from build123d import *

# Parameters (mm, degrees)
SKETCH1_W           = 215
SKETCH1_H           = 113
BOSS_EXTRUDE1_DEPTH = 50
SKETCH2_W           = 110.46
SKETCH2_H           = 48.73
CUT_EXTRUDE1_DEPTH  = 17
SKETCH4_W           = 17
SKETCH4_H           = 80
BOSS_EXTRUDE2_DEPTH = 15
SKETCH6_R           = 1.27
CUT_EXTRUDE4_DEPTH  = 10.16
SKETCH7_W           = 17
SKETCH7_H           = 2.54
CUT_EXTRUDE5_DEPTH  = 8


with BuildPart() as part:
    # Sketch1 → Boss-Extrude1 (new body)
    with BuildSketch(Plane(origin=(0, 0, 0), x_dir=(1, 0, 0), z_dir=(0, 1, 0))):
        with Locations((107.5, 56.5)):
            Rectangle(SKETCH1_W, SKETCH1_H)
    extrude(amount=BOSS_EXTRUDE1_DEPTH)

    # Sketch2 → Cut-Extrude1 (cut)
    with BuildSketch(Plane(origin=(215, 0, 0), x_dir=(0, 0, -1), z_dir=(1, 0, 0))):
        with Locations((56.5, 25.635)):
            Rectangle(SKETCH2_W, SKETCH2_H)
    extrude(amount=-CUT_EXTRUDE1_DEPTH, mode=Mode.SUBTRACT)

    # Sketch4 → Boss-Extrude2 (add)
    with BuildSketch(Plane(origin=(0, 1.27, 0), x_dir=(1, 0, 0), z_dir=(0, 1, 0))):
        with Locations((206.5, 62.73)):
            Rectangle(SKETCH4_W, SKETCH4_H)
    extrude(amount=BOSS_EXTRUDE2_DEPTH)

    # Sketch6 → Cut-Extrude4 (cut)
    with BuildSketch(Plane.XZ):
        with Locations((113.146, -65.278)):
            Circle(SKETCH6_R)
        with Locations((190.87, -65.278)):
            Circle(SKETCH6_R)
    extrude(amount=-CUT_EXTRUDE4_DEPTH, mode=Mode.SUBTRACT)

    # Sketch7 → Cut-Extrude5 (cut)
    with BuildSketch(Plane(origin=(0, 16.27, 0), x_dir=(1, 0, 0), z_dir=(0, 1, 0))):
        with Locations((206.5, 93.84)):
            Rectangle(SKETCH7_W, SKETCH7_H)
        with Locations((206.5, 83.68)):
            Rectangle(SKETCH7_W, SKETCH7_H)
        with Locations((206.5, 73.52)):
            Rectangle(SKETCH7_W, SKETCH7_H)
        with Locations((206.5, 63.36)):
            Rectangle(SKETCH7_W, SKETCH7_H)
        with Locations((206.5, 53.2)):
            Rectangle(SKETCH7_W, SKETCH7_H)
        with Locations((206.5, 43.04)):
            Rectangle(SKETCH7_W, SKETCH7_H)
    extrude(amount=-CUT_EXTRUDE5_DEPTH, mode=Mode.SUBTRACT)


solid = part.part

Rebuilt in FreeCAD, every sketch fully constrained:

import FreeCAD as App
import Part
import Sketcher

V = App.Vector


def add_polygon(sketch, points):
    """Adds a closed chain of lines whose ends are joined by coincident constraints."""
    first, n = sketch.GeometryCount, len(points)
    for a, b in zip(points, points[1:] + points[:1]):
        sketch.addGeometry(Part.LineSegment(App.Vector(*a, 0), App.Vector(*b, 0)), False)
    for i in range(n):
        sketch.addConstraint(Sketcher.Constraint("Coincident", first + i, 2, first + (i + 1) % n, 1))

doc = App.newDocument("Part")
params = doc.addObject("Spreadsheet::Sheet", "Params")
for row, (alias, value) in enumerate([
    ("sketch1_width", "215 mm"),
    ("sketch1_height", "113 mm"),
    ("pad1_length", "50 mm"),
    ("sketch2_width", "48.73 mm"),
    ("sketch2_height", "110.46 mm"),
    ("pocket1_length", "17 mm"),
    ("sketch3_width", "17 mm"),
    ("sketch3_height", "80 mm"),
    ("pad2_length", "15 mm"),
    ("sketch4_diameter", "2.54 mm"),
    ("pocket2_length", "10.16 mm"),
    ("sketch5_width", "17 mm"),
    ("sketch5_height", "2.54 mm"),
    ("pocket3_length", "8 mm"),
], start=1):
    params.set(f"A{row}", alias)
    params.set(f"B{row}", "=" + value)
    params.setAlias(f"B{row}", alias)

body = doc.addObject("PartDesign::Body", "Body")

sketch1 = doc.addObject("Sketcher::SketchObject", "Sketch")
body.addObject(sketch1)
sketch1.AttachmentSupport = (doc.XZ_Plane, [""])
sketch1.MapMode = "FlatFace"
add_polygon(sketch1, [(0, -113), (0, 0), (215, 0), (215, -113)])
sketch1.addConstraint([
    Sketcher.Constraint("Vertical", 0),
    Sketcher.Constraint("Horizontal", 1),
    Sketcher.Constraint("Vertical", 2),
    Sketcher.Constraint("Horizontal", 3),
    Sketcher.Constraint("Coincident", 0, 2, -1, 1),
    Sketcher.Constraint("DistanceX", 1, 1, 1, 2, 215.0),
    Sketcher.Constraint("DistanceY", 0, 1, 0, 2, 113.0),
])
sketch1.setExpression("Constraints[9]", "Params.sketch1_width")
sketch1.setExpression("Constraints[10]", "Params.sketch1_height")
pad1 = doc.addObject("PartDesign::Pad", "Pad")
body.addObject(pad1)
pad1.Profile = sketch1
pad1.setExpression("Length", "Params.pad1_length")
pad1.Reversed = True

sketch2 = doc.addObject("Sketcher::SketchObject", "Sketch001")
body.addObject(sketch2)
sketch2.AttachmentSupport = (doc.YZ_Plane, [""])
sketch2.MapMode = "FlatFace"
sketch2.AttachmentOffset = App.Placement(V(0, 0, 215), App.Rotation())
add_polygon(sketch2, [(50, -1), (1, -1), (1, -112), (50, -112)])
sketch2.addConstraint([
    Sketcher.Constraint("Horizontal", 0),
    Sketcher.Constraint("Vertical", 1),
    Sketcher.Constraint("Horizontal", 2),
    Sketcher.Constraint("Vertical", 3),
    Sketcher.Constraint("DistanceX", -1, 1, 2, 2, 50.0),
    Sketcher.Constraint("DistanceX", 0, 2, 0, 1, 48.73),
    Sketcher.Constraint("DistanceY", 1, 2, 1, 1, 110.46),
    Sketcher.Constraint("DistanceY", 0, 2, -1, 1, 1.27),
])
sketch2.setExpression("Constraints[9]", "Params.sketch2_width")
sketch2.setExpression("Constraints[10]", "Params.sketch2_height")
pocket1 = doc.addObject("PartDesign::Pocket", "Pocket")
body.addObject(pocket1)
pocket1.Profile = sketch2
pocket1.setExpression("Length", "Params.pocket1_length")

sketch3 = doc.addObject("Sketcher::SketchObject", "Sketch002")
body.addObject(sketch3)
sketch3.AttachmentSupport = (doc.XZ_Plane, [""])
sketch3.MapMode = "FlatFace"
sketch3.AttachmentOffset = App.Placement(V(0, 0, -1.27), App.Rotation())
add_polygon(sketch3, [(198, -103), (198, -23), (215, -23), (215, -103)])
sketch3.addConstraint([
    Sketcher.Constraint("Vertical", 0),
    Sketcher.Constraint("Horizontal", 1),
    Sketcher.Constraint("Vertical", 2),
    Sketcher.Constraint("Horizontal", 3),
    Sketcher.Constraint("DistanceX", 1, 1, 1, 2, 17.0),
    Sketcher.Constraint("DistanceY", 0, 1, 0, 2, 80.0),
    Sketcher.Constraint("DistanceX", -1, 1, 0, 2, 198.0),
    Sketcher.Constraint("DistanceY", 0, 2, -1, 1, 22.73),
])
sketch3.setExpression("Constraints[8]", "Params.sketch3_width")
sketch3.setExpression("Constraints[9]", "Params.sketch3_height")
pad2 = doc.addObject("PartDesign::Pad", "Pad001")
body.addObject(pad2)
pad2.Profile = sketch3
pad2.setExpression("Length", "Params.pad2_length")
pad2.Reversed = True

sketch4 = doc.addObject("Sketcher::SketchObject", "Sketch003")
body.addObject(sketch4)
sketch4.AttachmentSupport = (doc.XZ_Plane, [""])
sketch4.MapMode = "FlatFace"
sketch4.addGeometry([
    Part.Circle(V(113.1, -65.3, 0), V(0, 0, 1), 1.3),
    Part.Circle(V(190.9, -65.3, 0), V(0, 0, 1), 1.3),
], False)
sketch4.addConstraint([
    Sketcher.Constraint("Equal", 0, 1),
    Sketcher.Constraint("Horizontal", 0, 3, 1, 3),
    Sketcher.Constraint("Diameter", 0, 2.54),
    Sketcher.Constraint("DistanceX", -1, 1, 1, 3, 190.87),
    Sketcher.Constraint("DistanceX", -1, 1, 0, 3, 113.146),
    Sketcher.Constraint("DistanceY", 0, 3, -1, 1, 65.278),
])
sketch4.setExpression("Constraints[2]", "Params.sketch4_diameter")
pocket2 = doc.addObject("PartDesign::Pocket", "Pocket001")
body.addObject(pocket2)
pocket2.Profile = sketch4
pocket2.setExpression("Length", "Params.pocket2_length")

sketch5 = doc.addObject("Sketcher::SketchObject", "Sketch004")
body.addObject(sketch5)
sketch5.AttachmentSupport = (doc.XZ_Plane, [""])
sketch5.MapMode = "FlatFace"
sketch5.AttachmentOffset = App.Placement(V(0, 0, -16.27), App.Rotation())
add_polygon(sketch5, [(198, -95.1), (198, -92.6), (215, -92.6), (215, -95.1)])
add_polygon(sketch5, [(198, -85), (198, -82.4), (215, -82.4), (215, -85)])
add_polygon(sketch5, [(198, -74.8), (198, -72.2), (215, -72.2), (215, -74.8)])
add_polygon(sketch5, [(198, -64.6), (198, -62.1), (215, -62.1), (215, -64.6)])
add_polygon(sketch5, [(198, -54.5), (198, -51.9), (215, -51.9), (215, -54.5)])
add_polygon(sketch5, [(198, -44.3), (198, -41.8), (215, -41.8), (215, -44.3)])
sketch5.addConstraint([
    Sketcher.Constraint("Vertical", 0),
    Sketcher.Constraint("Horizontal", 1),
    Sketcher.Constraint("Vertical", 2),
    Sketcher.Constraint("Horizontal", 3),
    Sketcher.Constraint("Vertical", 4),
    Sketcher.Constraint("Horizontal", 5),
    Sketcher.Constraint("Vertical", 6),
    Sketcher.Constraint("Horizontal", 7),
    Sketcher.Constraint("Vertical", 8),
    Sketcher.Constraint("Horizontal", 9),
    Sketcher.Constraint("Vertical", 10),
    Sketcher.Constraint("Horizontal", 11),
    Sketcher.Constraint("Vertical", 12),
    Sketcher.Constraint("Horizontal", 13),
    Sketcher.Constraint("Vertical", 14),
    Sketcher.Constraint("Horizontal", 15),
    Sketcher.Constraint("Vertical", 16),
    Sketcher.Constraint("Horizontal", 17),
    Sketcher.Constraint("Vertical", 18),
    Sketcher.Constraint("Horizontal", 19),
    Sketcher.Constraint("Vertical", 20),
    Sketcher.Constraint("Horizontal", 21),
    Sketcher.Constraint("Vertical", 22),
    Sketcher.Constraint("Horizontal", 23),
    Sketcher.Constraint("Vertical", 3, 2, 4, 2),
    Sketcher.Constraint("Vertical", 2, 2, 5, 2),
    Sketcher.Constraint("Vertical", 7, 2, 8, 2),
    Sketcher.Constraint("Vertical", 6, 2, 9, 2),
    Sketcher.Constraint("Vertical", 11, 2, 12, 2),
    Sketcher.Constraint("Vertical", 10, 2, 13, 2),
    Sketcher.Constraint("Vertical", 15, 2, 16, 2),
    Sketcher.Constraint("Vertical", 14, 2, 17, 2),
    Sketcher.Constraint("Vertical", 19, 2, 20, 2),
    Sketcher.Constraint("Vertical", 18, 2, 21, 2),
    Sketcher.Constraint("Equal", 2, 4),
    Sketcher.Constraint("Equal", 6, 8),
    Sketcher.Constraint("Equal", 10, 12),
    Sketcher.Constraint("Equal", 14, 16),
    Sketcher.Constraint("Equal", 18, 20),
    Sketcher.Constraint("DistanceX", 1, 1, 1, 2, 17.0),
    Sketcher.Constraint("DistanceX", -1, 1, 0, 2, 198.0),
    Sketcher.Constraint("DistanceY", 0, 1, 0, 2, 2.54),
    Sketcher.Constraint("DistanceY", 3, 2, 4, 2, 12.7),
    Sketcher.Constraint("DistanceY", 7, 2, 8, 2, 12.7),
    Sketcher.Constraint("DistanceY", 11, 2, 12, 2, 12.7),
    Sketcher.Constraint("DistanceY", 15, 2, 16, 2, 12.7),
    Sketcher.Constraint("DistanceY", 19, 2, 20, 2, 12.7),
    Sketcher.Constraint("DistanceY", 0, 2, -1, 1, 92.57),
])
sketch5.setExpression("Constraints[63]", "Params.sketch5_width")
sketch5.setExpression("Constraints[65]", "Params.sketch5_height")
pocket3 = doc.addObject("PartDesign::Pocket", "Pocket002")
body.addObject(pocket3)
pocket3.Profile = sketch5
pocket3.setExpression("Length", "Params.pocket3_length")
pocket3.Reversed = True

doc.recompute()
